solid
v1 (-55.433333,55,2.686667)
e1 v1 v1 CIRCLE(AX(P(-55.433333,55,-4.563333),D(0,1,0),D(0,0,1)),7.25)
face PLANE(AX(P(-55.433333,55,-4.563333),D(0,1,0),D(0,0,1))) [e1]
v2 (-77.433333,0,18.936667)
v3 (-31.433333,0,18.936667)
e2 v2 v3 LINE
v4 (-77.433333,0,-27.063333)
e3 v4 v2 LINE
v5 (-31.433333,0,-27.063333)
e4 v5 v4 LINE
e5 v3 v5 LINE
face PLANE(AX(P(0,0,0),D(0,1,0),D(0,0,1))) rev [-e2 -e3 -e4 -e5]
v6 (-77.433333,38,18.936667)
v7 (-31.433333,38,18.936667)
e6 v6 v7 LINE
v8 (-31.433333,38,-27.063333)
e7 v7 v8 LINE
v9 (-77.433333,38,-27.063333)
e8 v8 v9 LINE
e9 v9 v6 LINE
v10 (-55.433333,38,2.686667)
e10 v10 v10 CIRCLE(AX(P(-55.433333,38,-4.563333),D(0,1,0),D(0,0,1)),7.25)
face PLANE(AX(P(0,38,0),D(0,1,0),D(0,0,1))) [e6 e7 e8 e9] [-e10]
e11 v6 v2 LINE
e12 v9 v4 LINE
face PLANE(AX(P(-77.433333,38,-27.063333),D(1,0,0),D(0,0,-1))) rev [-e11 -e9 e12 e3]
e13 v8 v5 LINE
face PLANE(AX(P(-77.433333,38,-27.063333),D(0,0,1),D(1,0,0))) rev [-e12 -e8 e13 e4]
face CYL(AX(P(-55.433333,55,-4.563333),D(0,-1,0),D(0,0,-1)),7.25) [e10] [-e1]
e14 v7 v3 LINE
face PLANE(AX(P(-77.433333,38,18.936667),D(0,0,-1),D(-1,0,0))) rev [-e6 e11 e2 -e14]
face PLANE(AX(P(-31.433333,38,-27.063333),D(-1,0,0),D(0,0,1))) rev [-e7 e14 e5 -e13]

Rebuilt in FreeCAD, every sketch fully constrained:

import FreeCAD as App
import Part
import Sketcher


def add_polygon(sketch, points):
    """Adds a closed chain of lines whose ends are joined by coincident constraints."""
    first, n = sketch.GeometryCount, len(points)
    for a, b in zip(points, points[1:] + points[:1]):
        sketch.addGeometry(Part.LineSegment(App.Vector(*a, 0), App.Vector(*b, 0)), False)
    for i in range(n):
        sketch.addConstraint(Sketcher.Constraint("Coincident", first + i, 2, first + (i + 1) % n, 1))

doc = App.newDocument("Part")
body = doc.addObject("PartDesign::Body", "Body")

# Sketch on XZ plane
sketch1 = body.newObject("Sketcher::SketchObject", "Sketch")
sketch1.AttachmentSupport = (doc.getObject("XZ_Plane"), [""])
sketch1.MapMode = "FlatFace"
add_polygon(sketch1, [(-77, -27), (-77, 19), (-31, 19), (-31, -27)])  # lines 0-3
sketch1.addConstraint([
    Sketcher.Constraint("Vertical", 0),
    Sketcher.Constraint("Horizontal", 1),
    Sketcher.Constraint("Vertical", 2),
    Sketcher.Constraint("Horizontal", 3),
    Sketcher.Constraint("Equal", 3, 0),
    Sketcher.Constraint("DistanceX", 1, 1, 1, 2, 46.0),
    Sketcher.Constraint("DistanceX", 0, 2, -1, 1, 77.433333),
    Sketcher.Constraint("DistanceY", -1, 1, 0, 2, 18.936667),
])
pad1 = body.newObject("PartDesign::Pad", "Pad")
pad1.Profile = sketch1
pad1.Length = 38
pad1.Reversed = True

# Sketch on XZ plane
sketch2 = body.newObject("Sketcher::SketchObject", "Sketch001")
sketch2.AttachmentSupport = (doc.getObject("XZ_Plane"), [""])
sketch2.MapMode = "FlatFace"
sketch2.AttachmentOffset = App.Placement(App.Vector(0, 0, -38), App.Rotation())
sketch2.addGeometry(Part.Circle(App.Vector(-55, -5, 0), App.Vector(0, 0, 1), 7), False)
sketch2.addConstraint([
    Sketcher.Constraint("Diameter", 0, 14.5),
    Sketcher.Constraint("DistanceX", 0, 3, -1, 1, 55.433333),
    Sketcher.Constraint("DistanceY", 0, 3, -1, 1, 4.563333),
])
pad2 = body.newObject("PartDesign::Pad", "Pad001")
pad2.Profile = sketch2
pad2.Length = 17
pad2.Reversed = True

doc.recompute()
